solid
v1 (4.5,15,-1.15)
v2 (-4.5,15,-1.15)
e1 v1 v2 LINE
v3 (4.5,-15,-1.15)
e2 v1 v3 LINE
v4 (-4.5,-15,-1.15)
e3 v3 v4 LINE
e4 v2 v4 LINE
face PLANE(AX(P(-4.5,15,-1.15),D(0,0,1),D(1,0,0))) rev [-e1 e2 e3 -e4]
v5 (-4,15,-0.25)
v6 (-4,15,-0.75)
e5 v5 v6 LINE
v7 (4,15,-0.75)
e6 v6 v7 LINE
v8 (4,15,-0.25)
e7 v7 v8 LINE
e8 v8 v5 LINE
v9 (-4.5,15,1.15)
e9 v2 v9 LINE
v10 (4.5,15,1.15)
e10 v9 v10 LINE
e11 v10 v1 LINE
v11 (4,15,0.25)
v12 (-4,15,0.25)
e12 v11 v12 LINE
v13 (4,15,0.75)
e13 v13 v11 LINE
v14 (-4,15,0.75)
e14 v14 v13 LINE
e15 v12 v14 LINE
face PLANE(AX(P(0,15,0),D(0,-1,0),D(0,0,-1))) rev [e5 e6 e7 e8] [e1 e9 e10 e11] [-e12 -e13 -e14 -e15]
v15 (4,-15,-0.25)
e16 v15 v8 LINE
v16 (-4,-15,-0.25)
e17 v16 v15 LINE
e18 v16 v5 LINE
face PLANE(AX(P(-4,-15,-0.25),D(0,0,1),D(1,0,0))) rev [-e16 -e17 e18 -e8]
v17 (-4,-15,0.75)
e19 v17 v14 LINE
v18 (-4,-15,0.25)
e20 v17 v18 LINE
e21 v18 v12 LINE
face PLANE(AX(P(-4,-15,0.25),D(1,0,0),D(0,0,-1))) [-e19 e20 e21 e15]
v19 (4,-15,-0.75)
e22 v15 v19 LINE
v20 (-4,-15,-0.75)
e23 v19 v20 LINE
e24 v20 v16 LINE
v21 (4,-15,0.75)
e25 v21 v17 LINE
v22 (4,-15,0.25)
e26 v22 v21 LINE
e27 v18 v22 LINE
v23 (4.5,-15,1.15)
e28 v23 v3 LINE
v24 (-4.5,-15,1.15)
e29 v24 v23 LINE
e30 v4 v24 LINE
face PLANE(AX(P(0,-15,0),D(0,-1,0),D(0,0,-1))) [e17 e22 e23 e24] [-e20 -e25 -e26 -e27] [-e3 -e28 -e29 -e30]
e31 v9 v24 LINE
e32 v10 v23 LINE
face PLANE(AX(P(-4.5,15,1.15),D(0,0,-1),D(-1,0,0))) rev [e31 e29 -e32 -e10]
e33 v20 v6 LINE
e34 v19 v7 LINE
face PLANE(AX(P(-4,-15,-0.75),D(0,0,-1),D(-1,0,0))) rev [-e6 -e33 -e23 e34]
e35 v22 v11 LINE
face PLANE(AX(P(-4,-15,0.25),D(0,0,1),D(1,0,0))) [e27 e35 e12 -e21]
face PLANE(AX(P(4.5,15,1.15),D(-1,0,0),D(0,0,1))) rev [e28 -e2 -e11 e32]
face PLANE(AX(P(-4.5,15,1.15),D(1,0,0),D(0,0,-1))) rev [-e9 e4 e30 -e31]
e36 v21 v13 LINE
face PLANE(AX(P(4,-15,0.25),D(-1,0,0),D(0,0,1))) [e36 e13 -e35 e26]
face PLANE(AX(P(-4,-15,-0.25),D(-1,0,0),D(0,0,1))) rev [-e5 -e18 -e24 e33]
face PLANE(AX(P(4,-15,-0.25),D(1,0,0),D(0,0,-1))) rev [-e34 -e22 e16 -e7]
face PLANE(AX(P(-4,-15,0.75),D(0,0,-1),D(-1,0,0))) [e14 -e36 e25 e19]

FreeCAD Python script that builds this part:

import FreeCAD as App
import Part
import Sketcher
from FreeCAD import Vector

doc = App.newDocument("Part")
body = doc.addObject("PartDesign::Body", "Body")

sketch1 = doc.addObject("Sketcher::SketchObject", "Sketch")
body.addObject(sketch1)
sketch1.AttachmentSupport = (doc.XZ_Plane, [""])
sketch1.MapMode = "FlatFace"
sketch1.addGeometry([
    Part.LineSegment(Vector(-4.5, -1.1, 0), Vector(-4.5, 1.1, 0)),
    Part.LineSegment(Vector(-4.5, 1.1, 0), Vector(4.5, 1.1, 0)),
    Part.LineSegment(Vector(4.5, 1.1, 0), Vector(4.5, -1.1, 0)),
    Part.LineSegment(Vector(4.5, -1.1, 0), Vector(-4.5, -1.1, 0)),
], False)
sketch1.addConstraint([
    Sketcher.Constraint("Coincident", 0, 2, 1, 1),
    Sketcher.Constraint("Coincident", 1, 2, 2, 1),
    Sketcher.Constraint("Coincident", 2, 2, 3, 1),
    Sketcher.Constraint("Coincident", 3, 2, 0, 1),
    Sketcher.Constraint("Vertical", 0),
    Sketcher.Constraint("Horizontal", 1),
    Sketcher.Constraint("Vertical", 2),
    Sketcher.Constraint("Horizontal", 3),
    Sketcher.Constraint("Symmetric", 0, 2, 2, 2, -1, 1),
    Sketcher.Constraint("DistanceX", 1, 1, 1, 2, 9.0),
    Sketcher.Constraint("DistanceY", 0, 1, 0, 2, 2.3),
])
pad1 = doc.addObject("PartDesign::Pad", "Pad")
body.addObject(pad1)
pad1.Profile = sketch1
pad1.Length = 30
pad1.Midplane = True

sketch2 = doc.addObject("Sketcher::SketchObject", "Sketch001")
body.addObject(sketch2)
sketch2.AttachmentSupport = (doc.XZ_Plane, [""])
sketch2.MapMode = "FlatFace"
sketch2.AttachmentOffset = App.Placement(Vector(0, 0, 16), App.Rotation())
sketch2.addGeometry([
    Part.LineSegment(Vector(-4, -0.8, 0), Vector(-4, -0.2, 0)),
    Part.LineSegment(Vector(-4, -0.2, 0), Vector(4, -0.2, 0)),
    Part.LineSegment(Vector(4, -0.2, 0), Vector(4, -0.8, 0)),
    Part.LineSegment(Vector(4, -0.8, 0), Vector(-4, -0.8, 0)),
], False)
sketch2.addConstraint([
    Sketcher.Constraint("Coincident", 0, 2, 1, 1),
    Sketcher.Constraint("Coincident", 1, 2, 2, 1),
    Sketcher.Constraint("Coincident", 2, 2, 3, 1),
    Sketcher.Constraint("Coincident", 3, 2, 0, 1),
    Sketcher.Constraint("Vertical", 0),
    Sketcher.Constraint("Horizontal", 1),
    Sketcher.Constraint("Vertical", 2),
    Sketcher.Constraint("Horizontal", 3),
    Sketcher.Constraint("DistanceX", 1, 1, 1, 2, 8.0),
    Sketcher.Constraint("DistanceY", 0, 1, 0, 2, 0.5),
    Sketcher.Constraint("DistanceX", 0, 2, -1, 1, 4.0),
    Sketcher.Constraint("DistanceY", 0, 2, -1, 1, 0.25),
])
pocket1 = doc.addObject("PartDesign::Pocket", "Pocket")
body.addObject(pocket1)
pocket1.Profile = sketch2
pocket1.Length = 32
doc.recompute()

mirrored = doc.addObject("PartDesign::Mirrored", "Mirrored")
body.addObject(mirrored)
mirrored.Originals = [pocket1]
mirrored.MirrorPlane = (doc.XY_Plane, [""])
body.Tip = mirrored

doc.recompute()
